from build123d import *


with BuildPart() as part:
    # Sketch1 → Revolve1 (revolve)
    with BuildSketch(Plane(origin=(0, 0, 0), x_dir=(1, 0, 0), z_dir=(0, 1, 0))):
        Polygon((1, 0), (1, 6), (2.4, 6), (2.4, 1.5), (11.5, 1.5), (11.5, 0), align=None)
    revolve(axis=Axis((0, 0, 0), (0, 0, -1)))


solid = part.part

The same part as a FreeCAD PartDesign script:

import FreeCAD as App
import Part
import Sketcher
Q = App.Units.Quantity

doc = App.newDocument("Part")
body = doc.addObject("PartDesign::Body", "Body")

sketch1 = body.newObject("Sketcher::SketchObject", "Sketch")
sketch1.AttachmentSupport = (doc.getObject("XZ_Plane"), [""])
sketch1.MapMode = "FlatFace"
sketch1.addGeometry([
    Part.LineSegment(App.Vector(1, -6, 0), App.Vector(1, 0, 0)),
    Part.LineSegment(App.Vector(1, 0, 0), App.Vector(11.5, 0, 0)),
    Part.LineSegment(App.Vector(11.5, 0, 0), App.Vector(11.5, -1.5, 0)),
    Part.LineSegment(App.Vector(11.5, -1.5, 0), App.Vector(2.4, -1.5, 0)),
    Part.LineSegment(App.Vector(2.4, -1.5, 0), App.Vector(2.4, -6, 0)),
    Part.LineSegment(App.Vector(2.4, -6, 0), App.Vector(1, -6, 0)),
], False)
sketch1.addConstraint([
    Sketcher.Constraint("Coincident", 0, 2, 1, 1),
    Sketcher.Constraint("Coincident", 1, 2, 2, 1),
    Sketcher.Constraint("Coincident", 2, 2, 3, 1),
    Sketcher.Constraint("Coincident", 3, 2, 4, 1),
    Sketcher.Constraint("Coincident", 4, 2, 5, 1),
    Sketcher.Constraint("Coincident", 5, 2, 0, 1),
    Sketcher.Constraint("Vertical", 0),
    Sketcher.Constraint("Horizontal", 1),
    Sketcher.Constraint("Vertical", 2),
    Sketcher.Constraint("Horizontal", 3),
    Sketcher.Constraint("Vertical", 4),
    Sketcher.Constraint("Horizontal", 5),
    Sketcher.Constraint("PointOnObject", 0, 2, -1),
    Sketcher.Constraint("DistanceY", 0, 1, 0, 2, Q("6 mm")),
    Sketcher.Constraint("DistanceX", 1, 1, 1, 2, Q("10.5 mm")),
    Sketcher.Constraint("DistanceX", 3, 2, 3, 1, Q("9.1 mm")),
    Sketcher.Constraint("DistanceY", 2, 2, 2, 1, Q("1.5 mm")),
    Sketcher.Constraint("DistanceX", -1, 1, 0, 2, Q("1 mm")),
])
revolution = body.newObject("PartDesign::Revolution", "Revolution")
revolution.Profile = sketch1
revolution.ReferenceAxis = (sketch1, ["V_Axis"])
revolution.Angle = 360

doc.recompute()
